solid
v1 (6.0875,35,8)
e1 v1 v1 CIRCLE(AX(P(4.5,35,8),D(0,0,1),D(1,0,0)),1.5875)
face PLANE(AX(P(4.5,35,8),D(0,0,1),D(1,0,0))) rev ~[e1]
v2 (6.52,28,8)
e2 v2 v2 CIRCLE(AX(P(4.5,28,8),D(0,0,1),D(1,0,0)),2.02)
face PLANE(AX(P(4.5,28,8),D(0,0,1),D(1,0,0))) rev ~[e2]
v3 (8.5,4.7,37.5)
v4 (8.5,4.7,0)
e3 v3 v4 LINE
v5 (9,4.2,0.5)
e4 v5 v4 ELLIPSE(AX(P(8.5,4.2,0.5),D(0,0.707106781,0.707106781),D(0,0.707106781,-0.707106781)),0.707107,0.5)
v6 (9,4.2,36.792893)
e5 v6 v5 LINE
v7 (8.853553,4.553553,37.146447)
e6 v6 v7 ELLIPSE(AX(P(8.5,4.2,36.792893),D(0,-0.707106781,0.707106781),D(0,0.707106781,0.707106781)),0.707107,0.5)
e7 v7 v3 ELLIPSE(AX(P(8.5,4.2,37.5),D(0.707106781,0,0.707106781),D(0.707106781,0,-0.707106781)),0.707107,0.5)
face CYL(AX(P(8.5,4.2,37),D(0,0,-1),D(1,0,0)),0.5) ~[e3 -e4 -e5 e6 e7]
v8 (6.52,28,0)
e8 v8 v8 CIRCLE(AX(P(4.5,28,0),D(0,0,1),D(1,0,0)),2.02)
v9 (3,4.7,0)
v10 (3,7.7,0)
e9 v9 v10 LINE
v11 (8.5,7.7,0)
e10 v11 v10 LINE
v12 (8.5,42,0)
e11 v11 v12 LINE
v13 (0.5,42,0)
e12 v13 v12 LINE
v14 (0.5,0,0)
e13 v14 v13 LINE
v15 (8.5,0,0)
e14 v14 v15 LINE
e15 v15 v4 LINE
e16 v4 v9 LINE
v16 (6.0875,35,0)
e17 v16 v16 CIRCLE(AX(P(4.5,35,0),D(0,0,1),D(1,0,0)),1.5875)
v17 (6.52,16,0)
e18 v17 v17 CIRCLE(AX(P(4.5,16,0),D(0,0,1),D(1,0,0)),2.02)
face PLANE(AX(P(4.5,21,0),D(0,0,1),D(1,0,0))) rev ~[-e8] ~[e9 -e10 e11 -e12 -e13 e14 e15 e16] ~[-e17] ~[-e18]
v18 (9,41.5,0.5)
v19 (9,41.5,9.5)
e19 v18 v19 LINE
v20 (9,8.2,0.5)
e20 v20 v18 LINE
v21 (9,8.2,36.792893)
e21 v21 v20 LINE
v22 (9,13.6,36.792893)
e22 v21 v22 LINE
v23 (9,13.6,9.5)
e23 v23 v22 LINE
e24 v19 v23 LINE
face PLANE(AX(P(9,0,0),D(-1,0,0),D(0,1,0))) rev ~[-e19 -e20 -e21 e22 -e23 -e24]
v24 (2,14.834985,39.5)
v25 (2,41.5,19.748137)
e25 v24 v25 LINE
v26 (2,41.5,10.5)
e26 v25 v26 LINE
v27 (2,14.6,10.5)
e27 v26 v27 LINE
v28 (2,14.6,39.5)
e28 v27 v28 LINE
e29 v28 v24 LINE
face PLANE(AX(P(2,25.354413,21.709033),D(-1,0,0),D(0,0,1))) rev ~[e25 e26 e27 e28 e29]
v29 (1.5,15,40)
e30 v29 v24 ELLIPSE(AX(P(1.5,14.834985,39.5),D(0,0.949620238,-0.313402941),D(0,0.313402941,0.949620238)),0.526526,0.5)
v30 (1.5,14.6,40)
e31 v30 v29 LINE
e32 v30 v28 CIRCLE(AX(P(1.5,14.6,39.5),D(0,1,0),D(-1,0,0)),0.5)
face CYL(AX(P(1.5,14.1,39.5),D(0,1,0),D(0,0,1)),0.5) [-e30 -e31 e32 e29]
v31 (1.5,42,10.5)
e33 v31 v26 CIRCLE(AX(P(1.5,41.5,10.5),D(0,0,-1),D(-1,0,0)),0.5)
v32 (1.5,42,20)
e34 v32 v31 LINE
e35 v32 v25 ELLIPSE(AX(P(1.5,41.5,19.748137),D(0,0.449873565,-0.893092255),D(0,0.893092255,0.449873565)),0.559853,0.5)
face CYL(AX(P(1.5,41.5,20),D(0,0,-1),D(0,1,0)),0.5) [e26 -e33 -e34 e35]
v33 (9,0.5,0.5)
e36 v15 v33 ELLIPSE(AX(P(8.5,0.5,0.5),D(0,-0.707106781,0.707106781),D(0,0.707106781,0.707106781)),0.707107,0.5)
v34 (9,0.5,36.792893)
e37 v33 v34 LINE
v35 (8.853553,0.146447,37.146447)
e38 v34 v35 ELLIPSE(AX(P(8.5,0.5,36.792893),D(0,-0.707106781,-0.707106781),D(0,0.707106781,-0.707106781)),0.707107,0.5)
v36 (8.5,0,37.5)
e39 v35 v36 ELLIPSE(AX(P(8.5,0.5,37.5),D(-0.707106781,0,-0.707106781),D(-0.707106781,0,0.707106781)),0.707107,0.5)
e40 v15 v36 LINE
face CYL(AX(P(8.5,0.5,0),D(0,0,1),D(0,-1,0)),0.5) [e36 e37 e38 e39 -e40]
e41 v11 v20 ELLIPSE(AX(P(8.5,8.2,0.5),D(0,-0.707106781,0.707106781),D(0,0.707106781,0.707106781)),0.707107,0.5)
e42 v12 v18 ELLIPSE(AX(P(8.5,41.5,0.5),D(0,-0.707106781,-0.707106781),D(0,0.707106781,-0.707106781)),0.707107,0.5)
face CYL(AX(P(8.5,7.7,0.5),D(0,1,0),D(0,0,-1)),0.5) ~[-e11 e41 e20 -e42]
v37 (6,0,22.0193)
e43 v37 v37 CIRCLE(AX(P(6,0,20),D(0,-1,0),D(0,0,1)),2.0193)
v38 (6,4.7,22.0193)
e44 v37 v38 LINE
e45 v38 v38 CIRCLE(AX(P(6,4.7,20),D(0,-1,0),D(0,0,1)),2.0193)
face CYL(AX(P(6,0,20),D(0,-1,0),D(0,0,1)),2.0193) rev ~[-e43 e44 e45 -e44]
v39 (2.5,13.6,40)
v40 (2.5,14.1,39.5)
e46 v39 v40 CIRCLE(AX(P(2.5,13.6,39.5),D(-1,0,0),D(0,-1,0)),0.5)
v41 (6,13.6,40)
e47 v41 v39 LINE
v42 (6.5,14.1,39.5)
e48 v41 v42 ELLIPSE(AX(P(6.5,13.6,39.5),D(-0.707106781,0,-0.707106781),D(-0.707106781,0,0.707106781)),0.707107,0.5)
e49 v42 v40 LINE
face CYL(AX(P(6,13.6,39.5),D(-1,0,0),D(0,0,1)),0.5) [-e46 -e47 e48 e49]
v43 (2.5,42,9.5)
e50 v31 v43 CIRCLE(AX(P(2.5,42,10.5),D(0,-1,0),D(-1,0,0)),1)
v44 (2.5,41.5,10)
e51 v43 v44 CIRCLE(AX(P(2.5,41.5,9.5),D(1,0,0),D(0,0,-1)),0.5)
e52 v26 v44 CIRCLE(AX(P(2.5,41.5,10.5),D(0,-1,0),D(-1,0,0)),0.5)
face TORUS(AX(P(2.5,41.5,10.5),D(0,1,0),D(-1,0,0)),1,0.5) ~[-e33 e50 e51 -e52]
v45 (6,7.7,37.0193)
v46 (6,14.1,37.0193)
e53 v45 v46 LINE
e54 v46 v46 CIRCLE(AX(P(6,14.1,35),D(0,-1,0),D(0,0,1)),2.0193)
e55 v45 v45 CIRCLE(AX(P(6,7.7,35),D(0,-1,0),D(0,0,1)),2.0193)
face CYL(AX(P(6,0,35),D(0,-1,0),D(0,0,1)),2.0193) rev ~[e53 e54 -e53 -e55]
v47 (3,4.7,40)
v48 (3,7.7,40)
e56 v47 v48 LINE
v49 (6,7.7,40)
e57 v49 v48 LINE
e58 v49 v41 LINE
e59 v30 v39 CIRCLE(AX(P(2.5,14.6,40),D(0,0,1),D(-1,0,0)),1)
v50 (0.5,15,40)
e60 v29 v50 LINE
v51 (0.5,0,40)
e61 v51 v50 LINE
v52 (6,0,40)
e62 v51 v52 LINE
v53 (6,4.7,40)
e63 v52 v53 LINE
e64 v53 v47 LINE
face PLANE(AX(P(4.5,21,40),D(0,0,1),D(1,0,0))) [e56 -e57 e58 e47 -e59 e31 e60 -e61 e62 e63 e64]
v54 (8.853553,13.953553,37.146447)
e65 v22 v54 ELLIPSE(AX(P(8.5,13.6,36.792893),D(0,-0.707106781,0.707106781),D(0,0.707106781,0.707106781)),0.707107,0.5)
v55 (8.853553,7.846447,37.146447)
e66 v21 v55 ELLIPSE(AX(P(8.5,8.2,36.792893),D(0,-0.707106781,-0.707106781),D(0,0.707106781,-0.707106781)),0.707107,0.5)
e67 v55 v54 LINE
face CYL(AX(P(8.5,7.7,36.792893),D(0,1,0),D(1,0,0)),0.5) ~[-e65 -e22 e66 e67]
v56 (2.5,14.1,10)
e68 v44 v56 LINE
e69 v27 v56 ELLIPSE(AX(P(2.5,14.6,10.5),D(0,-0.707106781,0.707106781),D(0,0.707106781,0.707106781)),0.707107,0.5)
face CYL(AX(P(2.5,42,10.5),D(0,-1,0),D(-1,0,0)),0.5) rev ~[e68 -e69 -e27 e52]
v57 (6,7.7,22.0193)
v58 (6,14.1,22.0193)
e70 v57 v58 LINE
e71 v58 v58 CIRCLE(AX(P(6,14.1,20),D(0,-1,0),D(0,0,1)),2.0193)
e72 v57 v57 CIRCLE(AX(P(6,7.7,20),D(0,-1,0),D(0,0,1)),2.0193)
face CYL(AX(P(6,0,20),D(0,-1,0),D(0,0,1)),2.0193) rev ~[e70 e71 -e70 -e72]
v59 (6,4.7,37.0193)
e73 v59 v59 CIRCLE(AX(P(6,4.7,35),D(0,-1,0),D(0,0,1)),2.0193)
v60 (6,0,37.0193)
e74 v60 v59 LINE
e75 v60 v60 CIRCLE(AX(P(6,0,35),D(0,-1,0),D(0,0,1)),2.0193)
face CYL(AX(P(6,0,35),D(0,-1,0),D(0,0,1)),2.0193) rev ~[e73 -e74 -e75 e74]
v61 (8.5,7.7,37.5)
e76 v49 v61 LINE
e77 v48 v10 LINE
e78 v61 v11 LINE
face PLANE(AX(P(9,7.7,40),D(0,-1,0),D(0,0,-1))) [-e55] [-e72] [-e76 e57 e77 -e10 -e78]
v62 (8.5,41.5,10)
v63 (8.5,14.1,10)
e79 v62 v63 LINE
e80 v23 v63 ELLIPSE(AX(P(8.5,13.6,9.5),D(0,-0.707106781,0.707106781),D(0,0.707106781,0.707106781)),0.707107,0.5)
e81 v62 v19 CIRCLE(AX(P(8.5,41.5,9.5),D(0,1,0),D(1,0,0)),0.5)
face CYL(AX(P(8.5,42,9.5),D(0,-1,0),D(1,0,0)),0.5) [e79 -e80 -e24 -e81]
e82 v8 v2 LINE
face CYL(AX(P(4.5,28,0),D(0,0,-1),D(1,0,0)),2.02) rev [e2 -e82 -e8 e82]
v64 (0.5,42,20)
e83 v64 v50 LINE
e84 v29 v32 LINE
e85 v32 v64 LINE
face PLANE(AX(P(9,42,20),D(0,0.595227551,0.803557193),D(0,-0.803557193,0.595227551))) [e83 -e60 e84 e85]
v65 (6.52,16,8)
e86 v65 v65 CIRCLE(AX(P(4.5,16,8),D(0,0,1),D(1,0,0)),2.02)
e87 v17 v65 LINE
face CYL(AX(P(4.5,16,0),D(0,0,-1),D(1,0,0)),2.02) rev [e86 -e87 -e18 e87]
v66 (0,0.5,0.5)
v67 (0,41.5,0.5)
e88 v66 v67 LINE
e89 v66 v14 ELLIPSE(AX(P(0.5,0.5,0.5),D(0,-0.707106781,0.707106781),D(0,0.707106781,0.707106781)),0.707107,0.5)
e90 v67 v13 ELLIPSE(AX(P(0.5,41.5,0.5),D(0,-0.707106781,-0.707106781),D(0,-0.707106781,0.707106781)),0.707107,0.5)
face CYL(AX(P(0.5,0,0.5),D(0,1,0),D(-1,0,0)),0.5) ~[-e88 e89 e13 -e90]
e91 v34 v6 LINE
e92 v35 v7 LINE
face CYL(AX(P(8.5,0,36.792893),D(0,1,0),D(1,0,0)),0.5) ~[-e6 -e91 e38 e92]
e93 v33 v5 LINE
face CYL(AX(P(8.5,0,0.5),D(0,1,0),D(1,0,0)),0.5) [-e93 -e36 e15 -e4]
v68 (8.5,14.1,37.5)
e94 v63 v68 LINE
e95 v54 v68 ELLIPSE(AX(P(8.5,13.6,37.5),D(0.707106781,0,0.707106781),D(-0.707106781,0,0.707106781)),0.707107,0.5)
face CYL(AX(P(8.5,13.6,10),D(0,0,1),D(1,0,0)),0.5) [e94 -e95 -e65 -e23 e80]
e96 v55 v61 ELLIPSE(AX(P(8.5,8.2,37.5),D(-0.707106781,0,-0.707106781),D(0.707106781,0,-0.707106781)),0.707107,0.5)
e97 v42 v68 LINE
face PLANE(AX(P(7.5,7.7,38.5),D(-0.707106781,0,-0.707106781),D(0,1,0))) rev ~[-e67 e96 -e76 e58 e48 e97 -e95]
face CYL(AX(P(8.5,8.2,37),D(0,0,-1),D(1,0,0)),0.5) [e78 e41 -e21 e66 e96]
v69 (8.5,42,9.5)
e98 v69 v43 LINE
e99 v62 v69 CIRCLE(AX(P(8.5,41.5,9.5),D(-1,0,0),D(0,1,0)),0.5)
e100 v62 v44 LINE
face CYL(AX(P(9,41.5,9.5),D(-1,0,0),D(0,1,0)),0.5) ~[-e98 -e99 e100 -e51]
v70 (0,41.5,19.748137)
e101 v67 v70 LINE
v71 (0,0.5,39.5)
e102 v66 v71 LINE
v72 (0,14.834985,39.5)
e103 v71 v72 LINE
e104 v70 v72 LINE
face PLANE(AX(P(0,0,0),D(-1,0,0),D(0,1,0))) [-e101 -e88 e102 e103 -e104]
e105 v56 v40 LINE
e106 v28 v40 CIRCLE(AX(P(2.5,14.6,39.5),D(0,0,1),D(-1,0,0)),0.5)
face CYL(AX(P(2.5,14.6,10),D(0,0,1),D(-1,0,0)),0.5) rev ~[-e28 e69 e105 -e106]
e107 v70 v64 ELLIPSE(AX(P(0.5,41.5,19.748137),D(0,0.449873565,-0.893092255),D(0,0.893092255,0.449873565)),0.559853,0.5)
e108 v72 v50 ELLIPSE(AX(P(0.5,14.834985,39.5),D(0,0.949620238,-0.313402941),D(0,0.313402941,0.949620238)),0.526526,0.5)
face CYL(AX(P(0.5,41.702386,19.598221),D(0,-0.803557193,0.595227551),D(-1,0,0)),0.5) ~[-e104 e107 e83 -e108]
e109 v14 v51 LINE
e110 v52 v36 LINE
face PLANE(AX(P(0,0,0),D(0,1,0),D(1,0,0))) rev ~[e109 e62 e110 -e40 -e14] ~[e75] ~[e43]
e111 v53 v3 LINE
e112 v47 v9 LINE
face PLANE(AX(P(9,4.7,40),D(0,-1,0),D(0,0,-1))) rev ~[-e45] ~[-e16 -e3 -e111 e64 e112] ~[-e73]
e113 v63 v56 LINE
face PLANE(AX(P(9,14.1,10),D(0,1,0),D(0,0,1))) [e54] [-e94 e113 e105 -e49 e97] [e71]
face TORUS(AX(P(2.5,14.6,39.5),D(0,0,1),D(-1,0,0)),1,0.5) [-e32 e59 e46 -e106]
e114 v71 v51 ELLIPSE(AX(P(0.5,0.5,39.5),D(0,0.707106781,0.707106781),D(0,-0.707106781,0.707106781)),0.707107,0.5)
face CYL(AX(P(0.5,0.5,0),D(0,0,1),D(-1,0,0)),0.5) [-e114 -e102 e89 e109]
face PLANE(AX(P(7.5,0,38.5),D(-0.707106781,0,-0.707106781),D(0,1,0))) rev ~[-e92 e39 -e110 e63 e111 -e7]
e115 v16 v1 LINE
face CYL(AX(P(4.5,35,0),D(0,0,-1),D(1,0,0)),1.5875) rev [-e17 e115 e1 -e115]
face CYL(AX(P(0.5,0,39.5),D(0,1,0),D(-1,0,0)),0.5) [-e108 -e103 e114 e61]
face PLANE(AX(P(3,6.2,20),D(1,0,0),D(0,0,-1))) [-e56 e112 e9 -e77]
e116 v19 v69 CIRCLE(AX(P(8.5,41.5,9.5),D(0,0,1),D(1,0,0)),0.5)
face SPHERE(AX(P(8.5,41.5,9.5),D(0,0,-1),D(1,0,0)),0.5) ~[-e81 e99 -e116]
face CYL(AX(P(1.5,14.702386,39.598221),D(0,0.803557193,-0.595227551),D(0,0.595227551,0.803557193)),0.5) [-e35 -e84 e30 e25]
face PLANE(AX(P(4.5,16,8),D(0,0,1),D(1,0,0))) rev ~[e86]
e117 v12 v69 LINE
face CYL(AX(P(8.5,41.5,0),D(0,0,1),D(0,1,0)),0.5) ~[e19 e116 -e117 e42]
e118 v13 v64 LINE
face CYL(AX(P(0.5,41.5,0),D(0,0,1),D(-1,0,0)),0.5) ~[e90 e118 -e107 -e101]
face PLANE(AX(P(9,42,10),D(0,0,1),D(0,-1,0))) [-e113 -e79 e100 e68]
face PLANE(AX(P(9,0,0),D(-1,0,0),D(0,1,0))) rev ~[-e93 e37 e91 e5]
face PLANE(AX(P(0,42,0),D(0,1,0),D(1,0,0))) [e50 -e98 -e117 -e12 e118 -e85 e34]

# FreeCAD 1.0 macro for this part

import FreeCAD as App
import Part
import Sketcher

V = App.Vector


def edges_at(feature, points):
    """Names of the edges that pass closest to the given points."""
    edges = feature.Shape.Edges
    near = lambda p: min(range(len(edges)), key=lambda i: edges[i].distToShape(Part.Vertex(*p))[0])
    return sorted({f"Edge{near(p) + 1}" for p in points})

doc = App.newDocument("Part")
body = doc.addObject("PartDesign::Body", "Body")

# Sketch on XY plane
sketch1 = body.newObject("Sketcher::SketchObject", "Sketch")
sketch1.AttachmentSupport = (doc.getObject("XY_Plane"), [""])
sketch1.MapMode = "FlatFace"
sketch1.addGeometry(Part.LineSegment(V(0, 42, 0), V(0, 0, 0)), False)
sketch1.addGeometry(Part.LineSegment(V(0, 0, 0), V(9, 0, 0)), False)
sketch1.addGeometry(Part.LineSegment(V(9, 0, 0), V(9, 42, 0)), False)
sketch1.addGeometry(Part.LineSegment(V(9, 42, 0), V(0, 42, 0)), False)
sketch1.addConstraint(Sketcher.Constraint("Coincident", 0, 2, 1, 1))
sketch1.addConstraint(Sketcher.Constraint("Coincident", 1, 2, 2, 1))
sketch1.addConstraint(Sketcher.Constraint("Coincident", 2, 2, 3, 1))
sketch1.addConstraint(Sketcher.Constraint("Coincident", 3, 2, 0, 1))
sketch1.addConstraint(Sketcher.Constraint("Vertical", 0))
sketch1.addConstraint(Sketcher.Constraint("Horizontal", 1))
sketch1.addConstraint(Sketcher.Constraint("Vertical", 2))
sketch1.addConstraint(Sketcher.Constraint("Horizontal", 3))
sketch1.addConstraint(Sketcher.Constraint("Coincident", 0, 2, -1, 1))
sketch1.addConstraint(Sketcher.Constraint("DistanceX", 1, 1, 1, 2, 9.0))
sketch1.addConstraint(Sketcher.Constraint("DistanceY", 0, 2, 0, 1, 42.0))
pad1 = body.newObject("PartDesign::Pad", "Pad")
pad1.Profile = sketch1
pad1.Length = 40

# Sketch on XY plane
sketch2 = body.newObject("Sketcher::SketchObject", "Sketch001")
sketch2.AttachmentSupport = (doc.getObject("XY_Plane"), [""])
sketch2.MapMode = "FlatFace"
sketch2.addGeometry(Part.Circle(V(4.5, 28, 0), V(0, 0, 1), 2), False)
sketch2.addGeometry(Part.Circle(V(4.5, 35, 0), V(0, 0, 1), 1.6), False)
sketch2.addGeometry(Part.Circle(V(4.5, 16, 0), V(0, 0, 1), 2), False)
sketch2.addConstraint(Sketcher.Constraint("Equal", 0, 2))
sketch2.addConstraint(Sketcher.Constraint("Vertical", 0, 3, 1, 3))
sketch2.addConstraint(Sketcher.Constraint("Vertical", 1, 3, 2, 3))
sketch2.addConstraint(Sketcher.Constraint("Diameter", 0, 4.04))
sketch2.addConstraint(Sketcher.Constraint("Diameter", 1, 3.175))
sketch2.addConstraint(Sketcher.Constraint("DistanceY", -1, 1, 0, 3, 28.0))
sketch2.addConstraint(Sketcher.Constraint("DistanceY", -1, 1, 1, 3, 35.0))
sketch2.addConstraint(Sketcher.Constraint("DistanceY", -1, 1, 2, 3, 16.0))
sketch2.addConstraint(Sketcher.Constraint("DistanceX", -1, 1, 0, 3, 4.5))
pocket1 = body.newObject("PartDesign::Pocket", "Pocket")
pocket1.Profile = sketch2
pocket1.Length = 8
pocket1.Reversed = True

# Sketch on YZ plane
sketch3 = body.newObject("Sketcher::SketchObject", "Sketch002")
sketch3.AttachmentSupport = (doc.getObject("YZ_Plane"), [""])
sketch3.MapMode = "FlatFace"
sketch3.AttachmentOffset = App.Placement(V(0, 0, 9), App.Rotation())
sketch3.addGeometry(Part.LineSegment(V(7.7, 40, 0), V(4.7, 40, 0)), False)
sketch3.addGeometry(Part.LineSegment(V(4.7, 40, 0), V(4.7, 0, 0)), False)
sketch3.addGeometry(Part.LineSegment(V(4.7, 0, 0), V(7.7, 0, 0)), False)
sketch3.addGeometry(Part.LineSegment(V(7.7, 0, 0), V(7.7, 40, 0)), False)
sketch3.addConstraint(Sketcher.Constraint("Coincident", 0, 2, 1, 1))
sketch3.addConstraint(Sketcher.Constraint("Coincident", 1, 2, 2, 1))
sketch3.addConstraint(Sketcher.Constraint("Coincident", 2, 2, 3, 1))
sketch3.addConstraint(Sketcher.Constraint("Coincident", 3, 2, 0, 1))
sketch3.addConstraint(Sketcher.Constraint("Horizontal", 0))
sketch3.addConstraint(Sketcher.Constraint("Vertical", 1))
sketch3.addConstraint(Sketcher.Constraint("Horizontal", 2))
sketch3.addConstraint(Sketcher.Constraint("Vertical", 3))
sketch3.addConstraint(Sketcher.Constraint("PointOnObject", 1, 2, -1))
sketch3.addConstraint(Sketcher.Constraint("DistanceX", 0, 2, 0, 1, 3.0))
sketch3.addConstraint(Sketcher.Constraint("DistanceY", 1, 2, 1, 1, 40.0))
sketch3.addConstraint(Sketcher.Constraint("DistanceX", -1, 1, 0, 2, 4.7))
pocket2 = body.newObject("PartDesign::Pocket", "Pocket001")
pocket2.Profile = sketch3
pocket2.Length = 6

# Sketch on YZ plane
sketch4 = body.newObject("Sketcher::SketchObject", "Sketch003")
sketch4.AttachmentSupport = (doc.getObject("YZ_Plane"), [""])
sketch4.MapMode = "FlatFace"
sketch4.AttachmentOffset = App.Placement(V(0, 0, 9), App.Rotation())
sketch4.addGeometry(Part.LineSegment(V(15, 40, 0), V(42, 20, 0)), False)
sketch4.addGeometry(Part.LineSegment(V(42, 20, 0), V(52, 48, 0)), False)
sketch4.addGeometry(Part.LineSegment(V(52, 48, 0), V(15, 40, 0)), False)
sketch4.addConstraint(Sketcher.Constraint("Coincident", 0, 2, 1, 1))
sketch4.addConstraint(Sketcher.Constraint("Coincident", 1, 2, 2, 1))
sketch4.addConstraint(Sketcher.Constraint("Coincident", 2, 2, 0, 1))
sketch4.addConstraint(Sketcher.Constraint("DistanceX", -1, 1, 0, 2, 42.0))
sketch4.addConstraint(Sketcher.Constraint("DistanceY", -1, 1, 0, 2, 20.0))
sketch4.addConstraint(Sketcher.Constraint("DistanceX", -1, 1, 2, 2, 15.0))
sketch4.addConstraint(Sketcher.Constraint("DistanceY", -1, 1, 2, 2, 40.0))
sketch4.addConstraint(Sketcher.Constraint("Distance", 1, 30.060921))
sketch4.addConstraint(Sketcher.Constraint("Distance", 2, 37.852277))
pocket3 = body.newObject("PartDesign::Pocket", "Pocket002")
pocket3.Profile = sketch4
pocket3.Length = 9

# Sketch on YZ plane
sketch5 = body.newObject("Sketcher::SketchObject", "Sketch004")
sketch5.AttachmentSupport = (doc.getObject("YZ_Plane"), [""])
sketch5.MapMode = "FlatFace"
sketch5.AttachmentOffset = App.Placement(V(0, 0, 9), App.Rotation())
sketch5.addGeometry(Part.LineSegment(V(42, 20, 0), V(42, 10, 0)), False)
sketch5.addGeometry(Part.LineSegment(V(42, 10, 0), V(14.1, 10, 0)), False)
sketch5.addGeometry(Part.LineSegment(V(14.1, 10, 0), V(14.1, 40, 0)), False)
sketch5.addGeometry(Part.LineSegment(V(14.1, 40, 0), V(15, 40, 0)), False)
sketch5.addGeometry(Part.LineSegment(V(15, 40, 0), V(42, 20, 0)), False)
sketch5.addConstraint(Sketcher.Constraint("Coincident", 0, 2, 1, 1))
sketch5.addConstraint(Sketcher.Constraint("Coincident", 1, 2, 2, 1))
sketch5.addConstraint(Sketcher.Constraint("Coincident", 2, 2, 3, 1))
sketch5.addConstraint(Sketcher.Constraint("Coincident", 3, 2, 4, 1))
sketch5.addConstraint(Sketcher.Constraint("Coincident", 4, 2, 0, 1))
sketch5.addConstraint(Sketcher.Constraint("Vertical", 0))
sketch5.addConstraint(Sketcher.Constraint("Horizontal", 1))
sketch5.addConstraint(Sketcher.Constraint("Vertical", 2))
sketch5.addConstraint(Sketcher.Constraint("Horizontal", 3))
sketch5.addConstraint(Sketcher.Constraint("DistanceY", 0, 2, 0, 1, 10.0))
sketch5.addConstraint(Sketcher.Constraint("DistanceY", 2, 1, 2, 2, 30.0))
sketch5.addConstraint(Sketcher.Constraint("DistanceX", 1, 2, 1, 1, 27.9))
sketch5.addConstraint(Sketcher.Constraint("DistanceX", 3, 1, 3, 2, 0.9))
sketch5.addConstraint(Sketcher.Constraint("DistanceX", -1, 1, 0, 2, 42.0))
sketch5.addConstraint(Sketcher.Constraint("DistanceY", -1, 1, 0, 2, 10.0))
pocket4 = body.newObject("PartDesign::Pocket", "Pocket003")
pocket4.Profile = sketch5
pocket4.Length = 7

# Sketch on XZ plane
sketch6 = body.newObject("Sketcher::SketchObject", "Sketch005")
sketch6.AttachmentSupport = (doc.getObject("XZ_Plane"), [""])
sketch6.MapMode = "FlatFace"
sketch6.addGeometry(Part.Circle(V(6, 35, 0), V(0, 0, 1), 2), False)
sketch6.addGeometry(Part.Circle(V(6, 20, 0), V(0, 0, 1), 2), False)
sketch6.addConstraint(Sketcher.Constraint("Equal", 0, 1))
sketch6.addConstraint(Sketcher.Constraint("Vertical", 0, 3, 1, 3))
sketch6.addConstraint(Sketcher.Constraint("DistanceX", -1, 1, 0, 3, 6.0))
sketch6.addConstraint(Sketcher.Constraint("DistanceY", -1, 1, 0, 3, 35.0))
sketch6.addConstraint(Sketcher.Constraint("DistanceY", -1, 1, 1, 3, 20.0))
sketch6.addConstraint(Sketcher.Constraint("Diameter", 0, 4.0386))
pocket5 = body.newObject("PartDesign::Pocket", "Pocket004")
pocket5.Profile = sketch6
pocket5.Length = 20
doc.recompute()

fillet = body.newObject("PartDesign::Fillet", "Fillet")
fillet.Base = (pocket5, edges_at(pocket5, [
    (0, 0, 20),
    (0, 7.5, 40),
    (0, 42, 10),
    (0, 28.5, 30),
    (0, 21, 0),
]))
fillet.Radius = 0.5
doc.recompute()

chamfer = body.newObject("PartDesign::Chamfer", "Chamfer")
chamfer.Base = (fillet, edges_at(fillet, [(9, 2.35, 40), (9, 10.9, 40)]))
chamfer.Size = 3
doc.recompute()

fillet2 = body.newObject("PartDesign::Fillet", "Fillet001")
fillet2.Base = (chamfer, edges_at(chamfer, [
    (9, 4.7, 18.5),
    (9, 0, 18.5),
    (9, 2.35, 37),
    (9, 10.9, 37),
    (9, 24.85, 0),
    (9, 7.7, 18.5),
    (9, 42, 5),
    (9, 14.1, 23.5),
    (2, 14.55, 40),
    (4, 14.1, 40),
    (2, 28.5, 30),
    (2, 42, 15),
    (9, 28.05, 10),
    (5.5, 42, 10),
    (2, 14.1, 25),
    (2, 28.05, 10),
    (9, 2.35, 0),
]))
fillet2.Radius = 0.5

doc.recompute()
